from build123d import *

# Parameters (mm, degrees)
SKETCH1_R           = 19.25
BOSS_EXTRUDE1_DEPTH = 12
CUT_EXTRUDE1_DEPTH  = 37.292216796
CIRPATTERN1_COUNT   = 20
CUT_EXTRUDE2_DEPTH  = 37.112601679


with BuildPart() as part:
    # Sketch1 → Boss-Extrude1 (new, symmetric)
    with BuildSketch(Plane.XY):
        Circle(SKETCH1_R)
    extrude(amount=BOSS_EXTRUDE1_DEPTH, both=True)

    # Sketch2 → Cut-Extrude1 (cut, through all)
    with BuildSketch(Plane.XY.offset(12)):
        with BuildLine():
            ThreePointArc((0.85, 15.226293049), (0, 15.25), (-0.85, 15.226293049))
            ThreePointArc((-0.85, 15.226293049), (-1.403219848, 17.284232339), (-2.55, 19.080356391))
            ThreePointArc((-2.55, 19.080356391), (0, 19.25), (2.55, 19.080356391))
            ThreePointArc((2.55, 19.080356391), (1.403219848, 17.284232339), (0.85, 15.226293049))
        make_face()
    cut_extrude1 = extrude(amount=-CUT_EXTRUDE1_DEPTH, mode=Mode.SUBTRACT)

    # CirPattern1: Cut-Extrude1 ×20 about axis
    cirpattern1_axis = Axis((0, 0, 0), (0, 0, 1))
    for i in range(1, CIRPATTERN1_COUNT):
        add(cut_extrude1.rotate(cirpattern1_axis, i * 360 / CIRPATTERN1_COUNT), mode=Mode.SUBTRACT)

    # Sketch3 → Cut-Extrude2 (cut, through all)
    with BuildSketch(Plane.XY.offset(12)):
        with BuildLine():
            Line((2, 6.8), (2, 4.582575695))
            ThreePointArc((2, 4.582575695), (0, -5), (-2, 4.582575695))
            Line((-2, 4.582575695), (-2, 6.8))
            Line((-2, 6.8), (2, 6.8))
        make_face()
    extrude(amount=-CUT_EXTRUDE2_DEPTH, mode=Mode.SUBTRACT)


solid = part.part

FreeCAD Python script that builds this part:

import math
import FreeCAD as App
import Part
import Sketcher
Q = App.Units.Quantity

doc = App.newDocument("Part")
body = doc.addObject("PartDesign::Body", "Body")

sketch1 = doc.addObject("Sketcher::SketchObject", "Sketch")
body.addObject(sketch1)
sketch1.AttachmentSupport = (doc.XY_Plane, [""])
sketch1.MapMode = "FlatFace"
sketch1.addGeometry(Part.Circle(App.Vector(0, 0, 0), App.Vector(0, 0, 1), 19), False)
sketch1.addConstraint([
    Sketcher.Constraint("Coincident", 0, 3, -1, 1),
    Sketcher.Constraint("Diameter", 0, Q("38.5 mm")),
])
pad1 = doc.addObject("PartDesign::Pad", "Pad")
body.addObject(pad1)
pad1.Profile = sketch1
pad1.Length = 24
pad1.Midplane = True

sketch2 = doc.addObject("Sketcher::SketchObject", "Sketch001")
body.addObject(sketch2)
sketch2.AttachmentSupport = (doc.XY_Plane, [""])
sketch2.MapMode = "FlatFace"
sketch2.AttachmentOffset = App.Placement(App.Vector(0, 0, 12), App.Rotation())
sketch2.addGeometry([
    Part.ArcOfCircle(Part.Circle(App.Vector(0, 0, 0), App.Vector(0, 0, 1), 15.3), math.radians(86.8), math.radians(93.2)),
    Part.ArcOfCircle(Part.Circle(App.Vector(7.8, 14.5, 0), App.Vector(0, 0, 1), 7), math.radians(139), math.radians(174)),
    Part.ArcOfCircle(Part.Circle(App.Vector(0, 0, 0), App.Vector(0, 0, 1), 19.3), math.radians(82.39), math.radians(97.61)),
    Part.ArcOfCircle(Part.Circle(App.Vector(-7.8, 14.5, 0), App.Vector(0, 0, 1), 7), math.radians(6), math.radians(41)),
], False)
sketch2.addConstraint([
    Sketcher.Constraint("Coincident", 0, 1, 1, 2),
    Sketcher.Constraint("Coincident", 1, 1, 2, 1),
    Sketcher.Constraint("Coincident", 2, 2, 3, 2),
    Sketcher.Constraint("Coincident", 3, 1, 0, 2),
    Sketcher.Constraint("Coincident", 0, 3, -1, 1),
    Sketcher.Constraint("Coincident", 2, 3, -1, 1),
    Sketcher.Constraint("Equal", 1, 3),
    Sketcher.Constraint("Symmetric", 1, 3, 3, 3, -2),
    Sketcher.Constraint("Radius", 1, Q("7 mm")),
    Sketcher.Constraint("Radius", 0, Q("15.25 mm")),
    Sketcher.Constraint("Radius", 2, Q("19.25 mm")),
    Sketcher.Constraint("DistanceX", 0, 1, 1, 1, Q("1.7 mm")),
    Sketcher.Constraint("DistanceX", 2, 2, 1, 1, Q("5.1 mm")),
])
pocket1 = doc.addObject("PartDesign::Pocket", "Pocket")
body.addObject(pocket1)
pocket1.Profile = sketch2
pocket1.Type = "ThroughAll"
doc.recompute()

polarpattern = doc.addObject("PartDesign::PolarPattern", "PolarPattern")
body.addObject(polarpattern)
polarpattern.Originals = [pocket1]
polarpattern.Axis = (doc.Z_Axis, [""])
polarpattern.Angle = 360
polarpattern.Occurrences = 20
body.Tip = polarpattern

sketch3 = doc.addObject("Sketcher::SketchObject", "Sketch002")
body.addObject(sketch3)
sketch3.AttachmentSupport = (doc.XY_Plane, [""])
sketch3.MapMode = "FlatFace"
sketch3.AttachmentOffset = App.Placement(App.Vector(0, 0, 12), App.Rotation())
sketch3.addGeometry([
    Part.LineSegment(App.Vector(2, 4.6, 0), App.Vector(2, 6.8, 0)),
    Part.LineSegment(App.Vector(2, 6.8, 0), App.Vector(-2, 6.8, 0)),
    Part.LineSegment(App.Vector(-2, 6.8, 0), App.Vector(-2, 4.6, 0)),
    Part.ArcOfCircle(Part.Circle(App.Vector(0, 0, 0), App.Vector(0, 0, 1), 5), math.radians(114), math.radians(426)),
], False)
sketch3.addConstraint([
    Sketcher.Constraint("Coincident", 0, 2, 1, 1),
    Sketcher.Constraint("Coincident", 1, 2, 2, 1),
    Sketcher.Constraint("Coincident", 2, 2, 3, 1),
    Sketcher.Constraint("Coincident", 3, 2, 0, 1),
    Sketcher.Constraint("Vertical", 0),
    Sketcher.Constraint("Horizontal", 1),
    Sketcher.Constraint("Vertical", 2),
    Sketcher.Constraint("Coincident", 3, 3, -1, 1),
    Sketcher.Constraint("Horizontal", 2, 2, 3, 2),
    Sketcher.Constraint("Radius", 3, Q("5 mm")),
    Sketcher.Constraint("DistanceX", 1, 2, 1, 1, Q("4 mm")),
    Sketcher.Constraint("DistanceY", -1, 1, 0, 2, Q("6.8 mm")),
])
pocket2 = doc.addObject("PartDesign::Pocket", "Pocket001")
body.addObject(pocket2)
pocket2.Profile = sketch3
pocket2.Type = "ThroughAll"

doc.recompute()
